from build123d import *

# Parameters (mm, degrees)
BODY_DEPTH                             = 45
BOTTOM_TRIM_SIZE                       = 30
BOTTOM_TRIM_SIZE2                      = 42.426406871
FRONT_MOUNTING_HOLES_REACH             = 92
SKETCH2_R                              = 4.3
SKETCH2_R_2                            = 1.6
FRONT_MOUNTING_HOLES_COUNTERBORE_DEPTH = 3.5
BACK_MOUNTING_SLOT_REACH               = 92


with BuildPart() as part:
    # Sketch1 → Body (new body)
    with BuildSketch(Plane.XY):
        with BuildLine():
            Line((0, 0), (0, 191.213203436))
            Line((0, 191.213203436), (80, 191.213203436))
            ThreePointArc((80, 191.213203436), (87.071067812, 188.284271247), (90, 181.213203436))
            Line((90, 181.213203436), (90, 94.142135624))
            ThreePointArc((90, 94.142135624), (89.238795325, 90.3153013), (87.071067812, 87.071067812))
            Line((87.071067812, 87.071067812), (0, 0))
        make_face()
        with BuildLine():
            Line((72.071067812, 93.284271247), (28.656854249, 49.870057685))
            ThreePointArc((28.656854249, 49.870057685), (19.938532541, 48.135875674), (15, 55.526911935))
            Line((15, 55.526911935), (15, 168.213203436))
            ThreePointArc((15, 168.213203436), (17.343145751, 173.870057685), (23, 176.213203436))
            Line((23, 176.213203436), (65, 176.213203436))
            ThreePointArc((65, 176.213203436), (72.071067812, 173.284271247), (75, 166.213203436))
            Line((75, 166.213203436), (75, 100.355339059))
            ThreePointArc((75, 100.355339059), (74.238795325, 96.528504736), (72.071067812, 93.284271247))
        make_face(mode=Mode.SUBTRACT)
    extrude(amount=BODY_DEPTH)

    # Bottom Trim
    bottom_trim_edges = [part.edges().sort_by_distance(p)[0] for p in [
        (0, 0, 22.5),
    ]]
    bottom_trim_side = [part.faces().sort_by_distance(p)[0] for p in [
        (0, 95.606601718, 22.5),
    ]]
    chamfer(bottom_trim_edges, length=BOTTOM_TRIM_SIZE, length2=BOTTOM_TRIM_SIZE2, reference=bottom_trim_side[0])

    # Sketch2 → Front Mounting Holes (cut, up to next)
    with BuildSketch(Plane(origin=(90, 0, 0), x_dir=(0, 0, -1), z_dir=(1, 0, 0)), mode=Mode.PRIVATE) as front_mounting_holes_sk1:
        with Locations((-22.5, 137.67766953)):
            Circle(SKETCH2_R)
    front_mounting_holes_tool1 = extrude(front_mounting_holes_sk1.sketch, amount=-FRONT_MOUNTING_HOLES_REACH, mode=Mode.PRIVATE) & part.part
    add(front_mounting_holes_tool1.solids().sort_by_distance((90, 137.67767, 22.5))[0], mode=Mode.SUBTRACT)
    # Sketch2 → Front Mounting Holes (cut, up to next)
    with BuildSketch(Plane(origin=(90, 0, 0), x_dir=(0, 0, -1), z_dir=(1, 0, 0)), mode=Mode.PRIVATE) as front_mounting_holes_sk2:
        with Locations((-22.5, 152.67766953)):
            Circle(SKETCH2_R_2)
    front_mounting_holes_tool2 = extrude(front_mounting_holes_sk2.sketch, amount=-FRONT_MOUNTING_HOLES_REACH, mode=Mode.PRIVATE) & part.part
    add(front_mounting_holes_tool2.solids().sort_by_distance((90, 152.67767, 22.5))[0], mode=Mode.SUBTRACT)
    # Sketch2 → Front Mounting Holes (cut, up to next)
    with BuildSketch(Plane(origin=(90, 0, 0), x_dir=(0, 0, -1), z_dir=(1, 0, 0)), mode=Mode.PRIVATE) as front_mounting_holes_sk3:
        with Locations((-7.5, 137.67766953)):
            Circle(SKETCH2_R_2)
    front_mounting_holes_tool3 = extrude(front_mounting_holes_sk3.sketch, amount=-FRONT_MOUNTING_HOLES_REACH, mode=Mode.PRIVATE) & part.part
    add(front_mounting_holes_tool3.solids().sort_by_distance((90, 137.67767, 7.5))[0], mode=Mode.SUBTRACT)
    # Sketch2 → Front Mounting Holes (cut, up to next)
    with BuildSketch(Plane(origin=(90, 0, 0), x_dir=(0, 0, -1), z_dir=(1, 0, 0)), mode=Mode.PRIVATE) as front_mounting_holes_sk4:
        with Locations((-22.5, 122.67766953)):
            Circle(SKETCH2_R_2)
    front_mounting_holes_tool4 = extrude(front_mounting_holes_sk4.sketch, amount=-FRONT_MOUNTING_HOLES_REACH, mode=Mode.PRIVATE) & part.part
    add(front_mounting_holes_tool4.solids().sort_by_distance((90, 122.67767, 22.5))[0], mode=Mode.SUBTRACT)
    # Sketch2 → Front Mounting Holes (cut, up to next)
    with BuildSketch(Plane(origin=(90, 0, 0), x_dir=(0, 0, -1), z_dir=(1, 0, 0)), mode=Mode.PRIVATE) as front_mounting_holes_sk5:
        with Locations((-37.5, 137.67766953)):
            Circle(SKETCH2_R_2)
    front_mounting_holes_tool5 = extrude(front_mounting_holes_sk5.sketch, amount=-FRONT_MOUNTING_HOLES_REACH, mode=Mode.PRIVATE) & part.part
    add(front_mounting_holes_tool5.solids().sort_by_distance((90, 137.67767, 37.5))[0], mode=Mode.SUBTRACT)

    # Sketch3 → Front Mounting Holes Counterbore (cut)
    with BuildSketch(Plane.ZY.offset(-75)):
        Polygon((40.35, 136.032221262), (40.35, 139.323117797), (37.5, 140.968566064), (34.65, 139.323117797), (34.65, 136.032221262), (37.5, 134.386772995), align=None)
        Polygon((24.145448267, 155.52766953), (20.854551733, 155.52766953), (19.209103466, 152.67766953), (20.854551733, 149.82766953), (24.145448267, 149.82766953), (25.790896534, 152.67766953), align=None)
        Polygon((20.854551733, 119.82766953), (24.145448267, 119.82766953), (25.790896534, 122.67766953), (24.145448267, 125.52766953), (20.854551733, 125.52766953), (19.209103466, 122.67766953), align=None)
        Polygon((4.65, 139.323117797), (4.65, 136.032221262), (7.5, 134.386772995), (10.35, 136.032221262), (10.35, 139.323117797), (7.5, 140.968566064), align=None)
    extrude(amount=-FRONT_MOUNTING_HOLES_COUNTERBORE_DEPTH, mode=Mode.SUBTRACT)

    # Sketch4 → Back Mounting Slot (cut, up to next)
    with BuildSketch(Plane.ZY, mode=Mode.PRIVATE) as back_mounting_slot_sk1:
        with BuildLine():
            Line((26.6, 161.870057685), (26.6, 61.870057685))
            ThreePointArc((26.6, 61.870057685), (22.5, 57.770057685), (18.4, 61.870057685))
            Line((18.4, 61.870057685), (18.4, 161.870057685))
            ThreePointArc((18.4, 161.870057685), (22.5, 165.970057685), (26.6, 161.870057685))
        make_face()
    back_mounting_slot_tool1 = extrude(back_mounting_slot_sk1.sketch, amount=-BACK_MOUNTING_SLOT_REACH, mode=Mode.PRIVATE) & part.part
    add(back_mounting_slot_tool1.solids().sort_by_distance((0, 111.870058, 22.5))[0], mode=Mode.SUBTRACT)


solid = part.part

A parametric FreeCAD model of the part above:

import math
import FreeCAD as App
import Part
import Sketcher

V = App.Vector
Q = App.Units.Quantity


def edges_at(feature, points):
    """Names of the edges that pass closest to the given points."""
    edges = feature.Shape.Edges
    near = lambda p: min(range(len(edges)), key=lambda i: edges[i].distToShape(Part.Vertex(*p))[0])
    return sorted({f"Edge{near(p) + 1}" for p in points})

doc = App.newDocument("Part")
params = doc.addObject("Spreadsheet::Sheet", "Params")
for row, (alias, value) in enumerate([
    ("sketch1_radius", "10 mm"),
    ("sketch1_radius2", "8 mm"),
    ("sketch1_width", "80 mm"),
    ("sketch1_width2", "42 mm"),
    ("pad1_length", "45 mm"),
    ("chamfer_size", "30 mm"),
    ("chamfer_size2", "42.426407 mm"),
    ("sketch2_diameter", "8.6 mm"),
    ("sketch3_diameter", "3.2 mm"),
    ("sketch4_diameter", "3.2 mm"),
    ("sketch5_diameter", "3.2 mm"),
    ("sketch6_diameter", "3.2 mm"),
    ("pocket6_length", "3.5 mm"),
    ("sketch8_radius", "4.1 mm"),
    ("sketch8_width", "100 mm"),
], start=1):
    params.set(f"A{row}", alias)
    params.set(f"B{row}", "=" + value)
    params.setAlias(f"B{row}", alias)

body = doc.addObject("PartDesign::Body", "Body")

sketch1 = body.newObject("Sketcher::SketchObject", "Sketch")
sketch1.AttachmentSupport = (doc.getObject("XY_Plane"), [""])
sketch1.MapMode = "FlatFace"
sketch1.addGeometry([
    Part.LineSegment(V(0, 191, 0), V(0, 0, 0)),
    Part.LineSegment(V(0, 0, 0), V(87, 87, 0)),
    Part.ArcOfCircle(Part.Circle(V(80, 94, 0), V(0, 0, 1), 10), math.radians(-45), math.radians(0)),
    Part.LineSegment(V(90, 94, 0), V(90, 181, 0)),
    Part.ArcOfCircle(Part.Circle(V(80, 181, 0), V(0, 0, 1), 10), math.radians(0), math.radians(90)),
    Part.LineSegment(V(80, 191, 0), V(0, 191, 0)),
    Part.LineSegment(V(72, 93, 0), V(29, 50, 0)),
    Part.ArcOfCircle(Part.Circle(V(23, 56, 0), V(0, 0, 1), 8), math.radians(180), math.radians(315)),
    Part.LineSegment(V(15, 56, 0), V(15, 168, 0)),
    Part.ArcOfCircle(Part.Circle(V(23, 168, 0), V(0, 0, 1), 8), math.radians(90), math.radians(180)),
    Part.LineSegment(V(23, 176, 0), V(65, 176, 0)),
    Part.ArcOfCircle(Part.Circle(V(65, 166, 0), V(0, 0, 1), 10), math.radians(0), math.radians(90)),
    Part.LineSegment(V(75, 166, 0), V(75, 100, 0)),
    Part.ArcOfCircle(Part.Circle(V(65, 100, 0), V(0, 0, 1), 10), math.radians(-45), math.radians(0)),
], False)
sketch1.addConstraint([
    Sketcher.Constraint("Coincident", 0, 2, 1, 1),
    Sketcher.Constraint("Tangent", 1, 2, 2, 1),
    Sketcher.Constraint("Tangent", 2, 2, 3, 1),
    Sketcher.Constraint("Tangent", 3, 2, 4, 1),
    Sketcher.Constraint("Tangent", 4, 2, 5, 1),
    Sketcher.Constraint("Coincident", 5, 2, 0, 1),
    Sketcher.Constraint("Tangent", 6, 2, 7, 2),
    Sketcher.Constraint("Tangent", 7, 1, 8, 1),
    Sketcher.Constraint("Tangent", 8, 2, 9, 2),
    Sketcher.Constraint("Tangent", 9, 1, 10, 1),
    Sketcher.Constraint("Tangent", 10, 2, 11, 2),
    Sketcher.Constraint("Tangent", 11, 1, 12, 1),
    Sketcher.Constraint("Tangent", 12, 2, 13, 2),
    Sketcher.Constraint("Tangent", 13, 1, 6, 1),
    Sketcher.Constraint("Vertical", 0),
    Sketcher.Constraint("Vertical", 3),
    Sketcher.Constraint("Horizontal", 5),
    Sketcher.Constraint("Vertical", 8),
    Sketcher.Constraint("Horizontal", 10),
    Sketcher.Constraint("Vertical", 12),
    Sketcher.Constraint("Coincident", 0, 2, -1, 1),
    Sketcher.Constraint("Equal", 2, 4),
    Sketcher.Constraint("Equal", 7, 9),
    Sketcher.Constraint("Equal", 4, 11),
    Sketcher.Constraint("Equal", 11, 13),
    Sketcher.Constraint("Parallel", 1, 6),
    Sketcher.Constraint("Radius", 2, Q("10 mm")),
    Sketcher.Constraint("Radius", 7, Q("8 mm")),
    Sketcher.Constraint("DistanceX", 5, 2, 5, 1, Q("80 mm")),
    Sketcher.Constraint("DistanceX", 10, 1, 10, 2, Q("42 mm")),
    Sketcher.Constraint("Angle", 1, Q("45 deg")),
    Sketcher.Constraint("DistanceX", -1, 1, 7, 3, Q("23 mm")),
    Sketcher.Constraint("DistanceY", 9, 3, 4, 3, Q("13 mm")),
    Sketcher.Constraint("DistanceY", 8, 1, 8, 2, Q("112.686292 mm")),
    Sketcher.Constraint("DistanceY", 0, 2, 0, 1, Q("191.213203 mm")),
])
sketch1.setExpression("Constraints[26]", "Params.sketch1_radius")
sketch1.setExpression("Constraints[27]", "Params.sketch1_radius2")
sketch1.setExpression("Constraints[28]", "Params.sketch1_width")
sketch1.setExpression("Constraints[29]", "Params.sketch1_width2")
pad1 = body.newObject("PartDesign::Pad", "Pad")
pad1.Profile = sketch1
pad1.setExpression("Length", "Params.pad1_length")
doc.recompute()

chamfer = body.newObject("PartDesign::Chamfer", "Chamfer")
chamfer.Base = (pad1, edges_at(pad1, [(0, 0, 22.5)]))
chamfer.ChamferType = "Two distances"
chamfer.setExpression("Size", "Params.chamfer_size")
chamfer.setExpression("Size2", "Params.chamfer_size2")

sketch2 = body.newObject("Sketcher::SketchObject", "Sketch001")
sketch2.AttachmentSupport = (doc.getObject("YZ_Plane"), [""])
sketch2.MapMode = "FlatFace"
sketch2.AttachmentOffset = App.Placement(V(0, 0, 90), App.Rotation())
sketch2.addGeometry(Part.Circle(V(137.7, 22.5, 0), V(0, 0, 1), 4.3), False)
sketch2.addConstraint([
    Sketcher.Constraint("Diameter", 0, Q("8.6 mm")),
    Sketcher.Constraint("DistanceY", -1, 1, 0, 3, Q("22.5 mm")),
    Sketcher.Constraint("DistanceX", -1, 1, 0, 3, Q("137.67767 mm")),
])
sketch2.setExpression("Constraints[0]", "Params.sketch2_diameter")
pocket1 = body.newObject("PartDesign::Pocket", "Pocket")
pocket1.Profile = sketch2
pocket1.Type = "UpToFirst"

sketch3 = body.newObject("Sketcher::SketchObject", "Sketch002")
sketch3.AttachmentSupport = (doc.getObject("YZ_Plane"), [""])
sketch3.MapMode = "FlatFace"
sketch3.AttachmentOffset = App.Placement(V(0, 0, 90), App.Rotation())
sketch3.addGeometry(Part.Circle(V(152.7, 22.5, 0), V(0, 0, 1), 1.6), False)
sketch3.addConstraint([
    Sketcher.Constraint("Diameter", 0, Q("3.2 mm")),
    Sketcher.Constraint("DistanceY", -1, 1, 0, 3, Q("22.5 mm")),
    Sketcher.Constraint("DistanceX", -1, 1, 0, 3, Q("152.67767 mm")),
])
sketch3.setExpression("Constraints[0]", "Params.sketch3_diameter")
pocket2 = body.newObject("PartDesign::Pocket", "Pocket001")
pocket2.Profile = sketch3
pocket2.Type = "UpToFirst"

sketch4 = body.newObject("Sketcher::SketchObject", "Sketch003")
sketch4.AttachmentSupport = (doc.getObject("YZ_Plane"), [""])
sketch4.MapMode = "FlatFace"
sketch4.AttachmentOffset = App.Placement(V(0, 0, 90), App.Rotation())
sketch4.addGeometry(Part.Circle(V(137.7, 7.5, 0), V(0, 0, 1), 1.6), False)
sketch4.addConstraint([
    Sketcher.Constraint("Diameter", 0, Q("3.2 mm")),
    Sketcher.Constraint("DistanceY", -1, 1, 0, 3, Q("7.5 mm")),
    Sketcher.Constraint("DistanceX", -1, 1, 0, 3, Q("137.67767 mm")),
])
sketch4.setExpression("Constraints[0]", "Params.sketch4_diameter")
pocket3 = body.newObject("PartDesign::Pocket", "Pocket002")
pocket3.Profile = sketch4
pocket3.Type = "UpToFirst"

sketch5 = body.newObject("Sketcher::SketchObject", "Sketch004")
sketch5.AttachmentSupport = (doc.getObject("YZ_Plane"), [""])
sketch5.MapMode = "FlatFace"
sketch5.AttachmentOffset = App.Placement(V(0, 0, 90), App.Rotation())
sketch5.addGeometry(Part.Circle(V(122.7, 22.5, 0), V(0, 0, 1), 1.6), False)
sketch5.addConstraint([
    Sketcher.Constraint("Diameter", 0, Q("3.2 mm")),
    Sketcher.Constraint("DistanceY", -1, 1, 0, 3, Q("22.5 mm")),
    Sketcher.Constraint("DistanceX", -1, 1, 0, 3, Q("122.67767 mm")),
])
sketch5.setExpression("Constraints[0]", "Params.sketch5_diameter")
pocket4 = body.newObject("PartDesign::Pocket", "Pocket003")
pocket4.Profile = sketch5
pocket4.Type = "UpToFirst"

sketch6 = body.newObject("Sketcher::SketchObject", "Sketch005")
sketch6.AttachmentSupport = (doc.getObject("YZ_Plane"), [""])
sketch6.MapMode = "FlatFace"
sketch6.AttachmentOffset = App.Placement(V(0, 0, 90), App.Rotation())
sketch6.addGeometry(Part.Circle(V(137.7, 37.5, 0), V(0, 0, 1), 1.6), False)
sketch6.addConstraint([
    Sketcher.Constraint("Diameter", 0, Q("3.2 mm")),
    Sketcher.Constraint("DistanceY", -1, 1, 0, 3, Q("37.5 mm")),
    Sketcher.Constraint("DistanceX", -1, 1, 0, 3, Q("137.67767 mm")),
])
sketch6.setExpression("Constraints[0]", "Params.sketch6_diameter")
pocket5 = body.newObject("PartDesign::Pocket", "Pocket004")
pocket5.Profile = sketch6
pocket5.Type = "UpToFirst"

sketch7 = body.newObject("Sketcher::SketchObject", "Sketch006")
sketch7.AttachmentSupport = (doc.getObject("YZ_Plane"), [""])
sketch7.MapMode = "FlatFace"
sketch7.AttachmentOffset = App.Placement(V(0, 0, 75), App.Rotation())
sketch7.addGeometry([
    Part.LineSegment(V(136, 40.4, 0), V(139.3, 40.4, 0)),
    Part.LineSegment(V(139.3, 40.4, 0), V(141, 37.5, 0)),
    Part.LineSegment(V(141, 37.5, 0), V(139.3, 34.6, 0)),
    Part.LineSegment(V(139.3, 34.6, 0), V(136, 34.6, 0)),
    Part.LineSegment(V(136, 34.6, 0), V(134.4, 37.5, 0)),
    Part.LineSegment(V(134.4, 37.5, 0), V(136, 40.4, 0)),
    Part.LineSegment(V(155.5, 24.1, 0), V(155.5, 20.9, 0)),
    Part.LineSegment(V(155.5, 20.9, 0), V(152.7, 19.2, 0)),
    Part.LineSegment(V(152.7, 19.2, 0), V(149.8, 20.9, 0)),
    Part.LineSegment(V(149.8, 20.9, 0), V(149.8, 24.1, 0)),
    Part.LineSegment(V(149.8, 24.1, 0), V(152.7, 25.8, 0)),
    Part.LineSegment(V(152.7, 25.8, 0), V(155.5, 24.1, 0)),
    Part.LineSegment(V(119.8, 20.9, 0), V(119.8, 24.1, 0)),
    Part.LineSegment(V(119.8, 24.1, 0), V(122.7, 25.8, 0)),
    Part.LineSegment(V(122.7, 25.8, 0), V(125.5, 24.1, 0)),
    Part.LineSegment(V(125.5, 24.1, 0), V(125.5, 20.9, 0)),
    Part.LineSegment(V(125.5, 20.9, 0), V(122.7, 19.2, 0)),
    Part.LineSegment(V(122.7, 19.2, 0), V(119.8, 20.9, 0)),
    Part.LineSegment(V(139.3, 4.7, 0), V(136, 4.7, 0)),
    Part.LineSegment(V(136, 4.7, 0), V(134.4, 7.5, 0)),
    Part.LineSegment(V(134.4, 7.5, 0), V(136, 10.3, 0)),
    Part.LineSegment(V(136, 10.3, 0), V(139.3, 10.3, 0)),
    Part.LineSegment(V(139.3, 10.3, 0), V(141, 7.5, 0)),
    Part.LineSegment(V(141, 7.5, 0), V(139.3, 4.7, 0)),
], False)
sketch7.addConstraint([
    Sketcher.Constraint("Coincident", 0, 2, 1, 1),
    Sketcher.Constraint("Coincident", 1, 2, 2, 1),
    Sketcher.Constraint("Coincident", 2, 2, 3, 1),
    Sketcher.Constraint("Coincident", 3, 2, 4, 1),
    Sketcher.Constraint("Coincident", 4, 2, 5, 1),
    Sketcher.Constraint("Coincident", 5, 2, 0, 1),
    Sketcher.Constraint("Coincident", 6, 2, 7, 1),
    Sketcher.Constraint("Coincident", 7, 2, 8, 1),
    Sketcher.Constraint("Coincident", 8, 2, 9, 1),
    Sketcher.Constraint("Coincident", 9, 2, 10, 1),
    Sketcher.Constraint("Coincident", 10, 2, 11, 1),
    Sketcher.Constraint("Coincident", 11, 2, 6, 1),
    Sketcher.Constraint("Coincident", 12, 2, 13, 1),
    Sketcher.Constraint("Coincident", 13, 2, 14, 1),
    Sketcher.Constraint("Coincident", 14, 2, 15, 1),
    Sketcher.Constraint("Coincident", 15, 2, 16, 1),
    Sketcher.Constraint("Coincident", 16, 2, 17, 1),
    Sketcher.Constraint("Coincident", 17, 2, 12, 1),
    Sketcher.Constraint("Coincident", 18, 2, 19, 1),
    Sketcher.Constraint("Coincident", 19, 2, 20, 1),
    Sketcher.Constraint("Coincident", 20, 2, 21, 1),
    Sketcher.Constraint("Coincident", 21, 2, 22, 1),
    Sketcher.Constraint("Coincident", 22, 2, 23, 1),
    Sketcher.Constraint("Coincident", 23, 2, 18, 1),
    Sketcher.Constraint("Horizontal", 0),
    Sketcher.Constraint("Horizontal", 3),
    Sketcher.Constraint("Vertical", 6),
    Sketcher.Constraint("Vertical", 9),
    Sketcher.Constraint("Vertical", 12),
    Sketcher.Constraint("Vertical", 15),
    Sketcher.Constraint("Horizontal", 18),
    Sketcher.Constraint("Horizontal", 21),
    Sketcher.Constraint("Parallel", 1, 4),
    Sketcher.Constraint("Parallel", 2, 5),
    Sketcher.Constraint("Perpendicular", 4, 7),
    Sketcher.Constraint("Perpendicular", 5, 8),
    Sketcher.Constraint("Parallel", 7, 10),
    Sketcher.Constraint("Parallel", 8, 11),
    Sketcher.Constraint("Parallel", 10, 13),
    Sketcher.Constraint("Parallel", 11, 14),
    Sketcher.Constraint("Parallel", 13, 16),
    Sketcher.Constraint("Parallel", 14, 17),
    Sketcher.Constraint("Perpendicular", 16, 19),
    Sketcher.Constraint("Perpendicular", 17, 20),
    Sketcher.Constraint("Parallel", 19, 22),
    Sketcher.Constraint("Parallel", 20, 23),
    Sketcher.Constraint("Horizontal", 1, 2, 4, 2),
    Sketcher.Constraint("Horizontal", 6, 2, 8, 2),
    Sketcher.Constraint("Horizontal", 9, 2, 11, 2),
    Sketcher.Constraint("Horizontal", 11, 2, 12, 2),
    Sketcher.Constraint("Horizontal", 10, 2, 13, 2),
    Sketcher.Constraint("Horizontal", 12, 2, 14, 2),
    Sketcher.Constraint("Horizontal", 8, 2, 15, 2),
    Sketcher.Constraint("Horizontal", 7, 2, 16, 2),
    Sketcher.Constraint("Horizontal", 19, 2, 22, 2),
    Sketcher.Constraint("Vertical", 0, 2, 2, 2),
    Sketcher.Constraint("Vertical", 3, 2, 5, 2),
    Sketcher.Constraint("Vertical", 5, 2, 18, 2),
    Sketcher.Constraint("Vertical", 4, 2, 19, 2),
    Sketcher.Constraint("Vertical", 18, 2, 20, 2),
    Sketcher.Constraint("Vertical", 2, 2, 21, 2),
    Sketcher.Constraint("Equal", 21, 6),
    Sketcher.Constraint("Equal", 5, 7),
    Sketcher.Constraint("Angle", 1, Q("-60 deg")),
    Sketcher.Constraint("DistanceY", -1, 1, 1, 2, Q("37.5 mm")),
    Sketcher.Constraint("DistanceY", -1, 1, 19, 2, Q("7.5 mm")),
    Sketcher.Constraint("DistanceY", 2, 2, 0, 2, Q("5.7 mm")),
    Sketcher.Constraint("DistanceX", 0, 1, 0, 2, Q("3.290897 mm")),
    Sketcher.Constraint("DistanceX", -1, 1, 3, 2, Q("136.032221 mm")),
    Sketcher.Constraint("DistanceX", -1, 1, 6, 2, Q("155.52767 mm")),
    Sketcher.Constraint("DistanceY", -1, 1, 6, 2, Q("20.854552 mm")),
    Sketcher.Constraint("DistanceX", -1, 1, 12, 2, Q("119.82767 mm")),
])
pocket6 = body.newObject("PartDesign::Pocket", "Pocket005")
pocket6.Profile = sketch7
pocket6.setExpression("Length", "Params.pocket6_length")
pocket6.Reversed = True

sketch8 = body.newObject("Sketcher::SketchObject", "Sketch007")
sketch8.AttachmentSupport = (doc.getObject("YZ_Plane"), [""])
sketch8.MapMode = "FlatFace"
sketch8.addGeometry([
    Part.LineSegment(V(61.9, 26.6, 0), V(161.9, 26.6, 0)),
    Part.ArcOfCircle(Part.Circle(V(161.9, 22.5, 0), V(0, 0, 1), 4.1), math.radians(-90), math.radians(90)),
    Part.LineSegment(V(161.9, 18.4, 0), V(61.9, 18.4, 0)),
    Part.ArcOfCircle(Part.Circle(V(61.9, 22.5, 0), V(0, 0, 1), 4.1), math.radians(90), math.radians(270)),
], False)
sketch8.addConstraint([
    Sketcher.Constraint("Tangent", 0, 2, 1, 2),
    Sketcher.Constraint("Tangent", 1, 1, 2, 1),
    Sketcher.Constraint("Tangent", 2, 2, 3, 2),
    Sketcher.Constraint("Tangent", 3, 1, 0, 1),
    Sketcher.Constraint("Horizontal", 0),
    Sketcher.Constraint("Horizontal", 2),
    Sketcher.Constraint("Radius", 1, Q("4.1 mm")),
    Sketcher.Constraint("DistanceX", 0, 1, 0, 2, Q("100 mm")),
    Sketcher.Constraint("DistanceY", -1, 1, 1, 3, Q("22.5 mm")),
    Sketcher.Constraint("DistanceX", -1, 1, 1, 3, Q("161.870058 mm")),
])
sketch8.setExpression("Constraints[6]", "Params.sketch8_radius")
sketch8.setExpression("Constraints[7]", "Params.sketch8_width")
pocket7 = body.newObject("PartDesign::Pocket", "Pocket006")
pocket7.Profile = sketch8
pocket7.Type = "UpToFirst"
pocket7.Reversed = True

doc.recompute()
